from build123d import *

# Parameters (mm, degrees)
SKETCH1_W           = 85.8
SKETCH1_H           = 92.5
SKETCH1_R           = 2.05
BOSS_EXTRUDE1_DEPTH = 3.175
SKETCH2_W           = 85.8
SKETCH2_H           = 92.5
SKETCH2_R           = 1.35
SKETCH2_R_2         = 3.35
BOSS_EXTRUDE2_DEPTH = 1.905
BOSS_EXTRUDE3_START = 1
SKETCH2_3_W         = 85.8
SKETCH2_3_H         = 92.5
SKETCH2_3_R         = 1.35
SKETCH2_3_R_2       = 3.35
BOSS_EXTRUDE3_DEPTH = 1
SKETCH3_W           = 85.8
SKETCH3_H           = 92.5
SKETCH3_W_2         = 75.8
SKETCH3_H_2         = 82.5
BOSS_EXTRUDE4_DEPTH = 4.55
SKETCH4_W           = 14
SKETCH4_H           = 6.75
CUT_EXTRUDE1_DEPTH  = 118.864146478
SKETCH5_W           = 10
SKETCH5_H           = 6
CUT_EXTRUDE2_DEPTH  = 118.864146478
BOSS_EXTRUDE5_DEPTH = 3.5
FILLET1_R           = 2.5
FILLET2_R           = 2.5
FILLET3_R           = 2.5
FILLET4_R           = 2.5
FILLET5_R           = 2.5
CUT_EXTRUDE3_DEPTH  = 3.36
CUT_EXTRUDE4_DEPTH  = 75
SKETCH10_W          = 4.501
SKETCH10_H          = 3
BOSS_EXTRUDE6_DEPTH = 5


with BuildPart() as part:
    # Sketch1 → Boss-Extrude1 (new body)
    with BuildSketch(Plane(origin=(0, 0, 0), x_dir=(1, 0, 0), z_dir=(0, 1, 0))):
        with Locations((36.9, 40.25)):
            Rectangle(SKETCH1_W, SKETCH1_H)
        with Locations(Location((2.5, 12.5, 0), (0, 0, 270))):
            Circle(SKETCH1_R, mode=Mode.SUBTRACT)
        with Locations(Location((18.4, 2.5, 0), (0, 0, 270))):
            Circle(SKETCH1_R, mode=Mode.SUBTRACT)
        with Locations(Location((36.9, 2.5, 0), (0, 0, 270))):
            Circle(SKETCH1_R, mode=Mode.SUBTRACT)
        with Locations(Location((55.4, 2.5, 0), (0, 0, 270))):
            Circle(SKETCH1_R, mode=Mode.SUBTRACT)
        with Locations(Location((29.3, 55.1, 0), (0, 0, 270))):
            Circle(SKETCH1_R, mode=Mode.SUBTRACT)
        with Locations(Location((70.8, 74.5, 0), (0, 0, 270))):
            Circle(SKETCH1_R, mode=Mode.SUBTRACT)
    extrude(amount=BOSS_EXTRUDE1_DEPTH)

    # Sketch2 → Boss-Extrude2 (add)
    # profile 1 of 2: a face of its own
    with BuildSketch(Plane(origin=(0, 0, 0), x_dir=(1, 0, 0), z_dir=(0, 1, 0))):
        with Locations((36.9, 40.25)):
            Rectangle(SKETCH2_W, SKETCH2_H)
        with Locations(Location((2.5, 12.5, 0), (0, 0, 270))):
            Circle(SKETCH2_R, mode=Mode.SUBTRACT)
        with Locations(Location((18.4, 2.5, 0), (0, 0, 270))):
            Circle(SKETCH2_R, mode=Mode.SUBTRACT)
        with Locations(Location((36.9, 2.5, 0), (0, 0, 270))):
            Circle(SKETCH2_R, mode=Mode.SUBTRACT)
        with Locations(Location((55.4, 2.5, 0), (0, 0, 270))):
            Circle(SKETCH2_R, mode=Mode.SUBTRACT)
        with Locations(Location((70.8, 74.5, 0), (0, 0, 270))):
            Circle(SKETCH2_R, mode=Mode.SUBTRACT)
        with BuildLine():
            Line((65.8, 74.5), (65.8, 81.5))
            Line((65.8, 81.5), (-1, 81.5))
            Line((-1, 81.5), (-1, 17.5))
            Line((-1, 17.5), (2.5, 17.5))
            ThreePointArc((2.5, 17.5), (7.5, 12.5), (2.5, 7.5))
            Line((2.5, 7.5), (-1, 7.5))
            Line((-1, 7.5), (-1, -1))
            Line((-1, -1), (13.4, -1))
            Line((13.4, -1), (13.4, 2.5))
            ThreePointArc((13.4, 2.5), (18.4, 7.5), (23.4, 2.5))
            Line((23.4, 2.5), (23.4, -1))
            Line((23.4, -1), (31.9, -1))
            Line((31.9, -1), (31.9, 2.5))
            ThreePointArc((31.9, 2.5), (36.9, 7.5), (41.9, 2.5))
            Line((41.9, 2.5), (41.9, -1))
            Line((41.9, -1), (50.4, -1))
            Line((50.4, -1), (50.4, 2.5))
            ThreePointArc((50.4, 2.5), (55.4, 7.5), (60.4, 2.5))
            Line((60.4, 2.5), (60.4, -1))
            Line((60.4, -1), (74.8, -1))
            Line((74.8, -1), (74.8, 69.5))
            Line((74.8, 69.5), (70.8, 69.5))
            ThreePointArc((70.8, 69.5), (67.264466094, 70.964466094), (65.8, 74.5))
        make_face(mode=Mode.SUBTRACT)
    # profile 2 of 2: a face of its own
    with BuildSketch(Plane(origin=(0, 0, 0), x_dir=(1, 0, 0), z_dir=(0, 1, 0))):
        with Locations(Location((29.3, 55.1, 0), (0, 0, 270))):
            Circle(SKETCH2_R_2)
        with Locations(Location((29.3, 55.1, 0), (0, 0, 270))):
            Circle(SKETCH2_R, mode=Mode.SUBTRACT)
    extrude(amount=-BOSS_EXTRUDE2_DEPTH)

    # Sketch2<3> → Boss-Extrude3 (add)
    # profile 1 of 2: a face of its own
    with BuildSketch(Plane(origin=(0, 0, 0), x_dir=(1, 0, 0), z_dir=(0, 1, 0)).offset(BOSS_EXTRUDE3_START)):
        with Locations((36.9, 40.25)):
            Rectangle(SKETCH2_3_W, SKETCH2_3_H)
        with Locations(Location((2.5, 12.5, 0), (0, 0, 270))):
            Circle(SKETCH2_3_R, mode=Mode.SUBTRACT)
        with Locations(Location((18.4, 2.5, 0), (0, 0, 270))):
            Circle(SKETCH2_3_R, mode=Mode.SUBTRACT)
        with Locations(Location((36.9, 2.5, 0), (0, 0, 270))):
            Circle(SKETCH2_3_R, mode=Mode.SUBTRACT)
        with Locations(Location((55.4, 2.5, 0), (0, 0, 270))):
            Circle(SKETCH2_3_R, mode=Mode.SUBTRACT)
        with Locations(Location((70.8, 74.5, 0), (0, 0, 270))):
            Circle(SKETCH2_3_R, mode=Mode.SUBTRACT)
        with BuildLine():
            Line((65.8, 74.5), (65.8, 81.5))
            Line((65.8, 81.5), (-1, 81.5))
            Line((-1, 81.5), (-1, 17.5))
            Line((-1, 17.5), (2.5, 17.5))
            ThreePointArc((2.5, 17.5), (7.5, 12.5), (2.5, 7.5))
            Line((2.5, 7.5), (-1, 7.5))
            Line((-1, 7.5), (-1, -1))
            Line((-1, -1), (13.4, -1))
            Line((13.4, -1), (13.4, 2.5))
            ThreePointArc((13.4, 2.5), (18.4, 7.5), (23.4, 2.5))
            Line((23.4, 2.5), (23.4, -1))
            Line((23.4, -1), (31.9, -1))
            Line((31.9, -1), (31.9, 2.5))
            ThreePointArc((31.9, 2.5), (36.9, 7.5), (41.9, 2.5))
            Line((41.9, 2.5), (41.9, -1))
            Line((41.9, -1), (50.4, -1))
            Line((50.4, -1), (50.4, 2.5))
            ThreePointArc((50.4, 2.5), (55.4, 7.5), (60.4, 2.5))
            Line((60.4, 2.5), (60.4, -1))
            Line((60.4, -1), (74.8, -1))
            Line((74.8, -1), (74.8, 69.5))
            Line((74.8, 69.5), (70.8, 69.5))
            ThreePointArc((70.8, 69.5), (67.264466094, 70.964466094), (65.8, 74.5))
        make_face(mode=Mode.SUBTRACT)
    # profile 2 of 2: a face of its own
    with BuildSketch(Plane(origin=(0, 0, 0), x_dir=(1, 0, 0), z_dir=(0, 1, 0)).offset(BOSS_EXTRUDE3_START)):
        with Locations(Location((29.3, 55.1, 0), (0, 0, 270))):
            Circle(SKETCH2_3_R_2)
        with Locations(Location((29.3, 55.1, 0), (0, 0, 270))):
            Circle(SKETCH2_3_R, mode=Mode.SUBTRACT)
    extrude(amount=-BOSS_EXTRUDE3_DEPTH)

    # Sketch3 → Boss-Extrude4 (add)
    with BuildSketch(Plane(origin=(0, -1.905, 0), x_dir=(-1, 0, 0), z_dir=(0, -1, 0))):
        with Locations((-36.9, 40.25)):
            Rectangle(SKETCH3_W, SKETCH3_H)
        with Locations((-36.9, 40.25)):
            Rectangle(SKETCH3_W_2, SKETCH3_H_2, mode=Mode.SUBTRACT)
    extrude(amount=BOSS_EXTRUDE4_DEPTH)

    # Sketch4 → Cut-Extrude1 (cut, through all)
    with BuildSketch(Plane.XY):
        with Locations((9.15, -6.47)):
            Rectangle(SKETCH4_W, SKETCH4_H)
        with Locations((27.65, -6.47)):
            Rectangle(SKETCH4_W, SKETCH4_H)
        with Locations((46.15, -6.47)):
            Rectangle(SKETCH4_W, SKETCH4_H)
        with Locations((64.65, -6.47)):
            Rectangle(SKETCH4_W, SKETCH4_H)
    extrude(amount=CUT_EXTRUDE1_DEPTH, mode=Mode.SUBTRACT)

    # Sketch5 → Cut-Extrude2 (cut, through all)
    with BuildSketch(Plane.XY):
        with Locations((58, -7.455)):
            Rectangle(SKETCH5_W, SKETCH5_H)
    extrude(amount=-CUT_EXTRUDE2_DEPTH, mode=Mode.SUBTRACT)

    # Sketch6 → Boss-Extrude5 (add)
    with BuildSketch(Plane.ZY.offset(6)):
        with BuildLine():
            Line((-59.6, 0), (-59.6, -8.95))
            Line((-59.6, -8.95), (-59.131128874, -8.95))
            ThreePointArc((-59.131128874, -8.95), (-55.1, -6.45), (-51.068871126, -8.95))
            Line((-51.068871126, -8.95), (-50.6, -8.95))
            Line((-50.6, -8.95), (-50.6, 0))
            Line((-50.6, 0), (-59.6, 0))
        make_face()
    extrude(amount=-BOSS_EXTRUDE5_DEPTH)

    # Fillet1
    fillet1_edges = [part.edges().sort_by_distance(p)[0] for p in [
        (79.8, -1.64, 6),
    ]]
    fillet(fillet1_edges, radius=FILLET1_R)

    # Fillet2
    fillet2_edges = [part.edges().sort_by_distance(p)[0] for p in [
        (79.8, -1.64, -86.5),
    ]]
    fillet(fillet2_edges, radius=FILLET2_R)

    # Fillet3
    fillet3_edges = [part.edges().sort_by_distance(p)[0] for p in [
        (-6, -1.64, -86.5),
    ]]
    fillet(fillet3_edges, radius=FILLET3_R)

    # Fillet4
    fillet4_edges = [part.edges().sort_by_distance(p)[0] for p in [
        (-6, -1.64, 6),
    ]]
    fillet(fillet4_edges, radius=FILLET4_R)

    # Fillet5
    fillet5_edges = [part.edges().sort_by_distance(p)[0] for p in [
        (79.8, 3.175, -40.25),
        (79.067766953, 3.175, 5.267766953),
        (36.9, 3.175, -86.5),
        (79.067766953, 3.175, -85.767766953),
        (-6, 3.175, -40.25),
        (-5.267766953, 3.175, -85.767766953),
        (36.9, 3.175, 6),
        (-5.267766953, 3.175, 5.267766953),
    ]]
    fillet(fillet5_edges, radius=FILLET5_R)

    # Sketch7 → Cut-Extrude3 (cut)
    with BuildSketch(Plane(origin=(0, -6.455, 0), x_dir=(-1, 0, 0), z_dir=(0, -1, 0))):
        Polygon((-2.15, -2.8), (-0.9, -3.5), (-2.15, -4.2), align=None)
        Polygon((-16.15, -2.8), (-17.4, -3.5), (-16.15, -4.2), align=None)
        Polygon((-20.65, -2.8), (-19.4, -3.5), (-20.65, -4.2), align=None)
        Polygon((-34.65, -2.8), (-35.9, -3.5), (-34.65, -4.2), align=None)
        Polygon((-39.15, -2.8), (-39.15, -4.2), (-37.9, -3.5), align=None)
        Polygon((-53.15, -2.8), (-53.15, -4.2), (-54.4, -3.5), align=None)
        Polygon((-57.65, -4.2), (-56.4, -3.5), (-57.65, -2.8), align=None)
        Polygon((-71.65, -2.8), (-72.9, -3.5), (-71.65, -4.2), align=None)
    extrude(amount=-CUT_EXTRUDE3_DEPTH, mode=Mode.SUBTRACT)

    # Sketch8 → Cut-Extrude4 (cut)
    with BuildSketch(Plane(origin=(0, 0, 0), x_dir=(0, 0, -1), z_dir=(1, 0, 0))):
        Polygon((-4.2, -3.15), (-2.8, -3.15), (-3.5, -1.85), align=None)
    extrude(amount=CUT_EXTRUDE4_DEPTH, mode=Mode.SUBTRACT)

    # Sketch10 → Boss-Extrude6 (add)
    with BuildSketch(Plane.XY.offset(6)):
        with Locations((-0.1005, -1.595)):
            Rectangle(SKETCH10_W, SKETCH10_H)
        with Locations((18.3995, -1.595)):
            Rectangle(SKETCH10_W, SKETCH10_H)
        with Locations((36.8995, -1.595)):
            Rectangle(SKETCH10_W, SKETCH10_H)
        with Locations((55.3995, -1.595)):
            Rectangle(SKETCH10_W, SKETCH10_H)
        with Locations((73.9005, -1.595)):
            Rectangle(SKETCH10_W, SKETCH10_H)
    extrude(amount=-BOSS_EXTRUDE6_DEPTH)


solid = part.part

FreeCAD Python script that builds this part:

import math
import FreeCAD as App
import Part
import Sketcher
from FreeCAD import Vector
Q = App.Units.Quantity


def edges_at(feature, points):
    """Names of the edges that pass closest to the given points."""
    edges = feature.Shape.Edges
    near = lambda p: min(range(len(edges)), key=lambda i: edges[i].distToShape(Part.Vertex(*p))[0])
    return sorted({f"Edge{near(p) + 1}" for p in points})


def add_polygon(sketch, points):
    """Adds a closed chain of lines whose ends are joined by coincident constraints."""
    first, n = sketch.GeometryCount, len(points)
    for a, b in zip(points, points[1:] + points[:1]):
        sketch.addGeometry(Part.LineSegment(App.Vector(*a, 0), App.Vector(*b, 0)), False)
    for i in range(n):
        sketch.addConstraint(Sketcher.Constraint("Coincident", first + i, 2, first + (i + 1) % n, 1))

doc = App.newDocument("Part")
params = doc.addObject("Spreadsheet::Sheet", "Params")
for row, (alias, value) in enumerate([
    ("sketch1_diameter", "4.1 mm"),
    ("sketch1_width", "85.8 mm"),
    ("sketch1_height", "92.5 mm"),
    ("pad1_length", "3.175 mm"),
    ("sketch2_radius", "5 mm"),
    ("sketch2_diameter", "2.7 mm"),
    ("sketch2_diameter2", "6.7 mm"),
    ("sketch2_width", "4 mm"),
    ("sketch2_height", "7 mm"),
    ("pad2_length", "1.905 mm"),
    ("sketch3_radius", "5 mm"),
    ("sketch3_diameter", "2.7 mm"),
    ("sketch3_diameter2", "6.7 mm"),
    ("sketch3_width", "4 mm"),
    ("sketch3_height", "7 mm"),
    ("pad3_length", "1 mm"),
    ("sketch4_width", "85.8 mm"),
    ("sketch4_width2", "75.8 mm"),
    ("sketch4_height", "92.5 mm"),
    ("sketch4_height2", "82.5 mm"),
    ("pad4_length", "4.55 mm"),
    ("sketch5_width", "14 mm"),
    ("sketch5_height", "6.75 mm"),
    ("sketch6_width", "10 mm"),
    ("sketch6_height", "6 mm"),
    ("sketch7_radius", "4.5 mm"),
    ("sketch7_height", "9 mm"),
    ("sketch7_width", "8.95 mm"),
    ("pad5_length", "3.5 mm"),
    ("fillet_radius", "2.5 mm"),
    ("fillet2_radius", "2.5 mm"),
    ("fillet3_radius", "2.5 mm"),
    ("fillet4_radius", "2.5 mm"),
    ("fillet5_radius", "2.5 mm"),
    ("sketch8_height", "1.4 mm"),
    ("pocket3_length", "3.36 mm"),
    ("sketch9_height", "1.4 mm"),
    ("pocket4_length", "75 mm"),
    ("sketch10_height", "3 mm"),
    ("pad6_length", "5 mm"),
], start=1):
    params.set(f"A{row}", alias)
    params.set(f"B{row}", "=" + value)
    params.setAlias(f"B{row}", alias)

body = doc.addObject("PartDesign::Body", "Body")

sketch1 = body.newObject("Sketcher::SketchObject", "Sketch")
sketch1.AttachmentSupport = (doc.getObject("XZ_Plane"), [""])
sketch1.MapMode = "FlatFace"
add_polygon(sketch1, [(-6, -86.5), (-6, 6), (79.8, 6), (79.8, -86.5)])
sketch1.addGeometry(Part.Circle(Vector(18.4, -2.5, 0), Vector(0, 0, 1), 2.05), False)
sketch1.addGeometry(Part.Circle(Vector(2.5, -12.5, 0), Vector(0, 0, 1), 2.05), False)
sketch1.addGeometry(Part.Circle(Vector(36.9, -2.5, 0), Vector(0, 0, 1), 2.05), False)
sketch1.addGeometry(Part.Circle(Vector(55.4, -2.5, 0), Vector(0, 0, 1), 2.05), False)
sketch1.addGeometry(Part.Circle(Vector(29.3, -55.1, 0), Vector(0, 0, 1), 2.05), False)
sketch1.addGeometry(Part.Circle(Vector(70.8, -74.5, 0), Vector(0, 0, 1), 2.05), False)
sketch1.addConstraint(Sketcher.Constraint("Vertical", 0))
sketch1.addConstraint(Sketcher.Constraint("Horizontal", 1))
sketch1.addConstraint(Sketcher.Constraint("Vertical", 2))
sketch1.addConstraint(Sketcher.Constraint("Horizontal", 3))
sketch1.addConstraint(Sketcher.Constraint("Equal", 4, 5))
sketch1.addConstraint(Sketcher.Constraint("Equal", 5, 6))
sketch1.addConstraint(Sketcher.Constraint("Equal", 6, 7))
sketch1.addConstraint(Sketcher.Constraint("Equal", 7, 8))
sketch1.addConstraint(Sketcher.Constraint("Equal", 8, 9))
sketch1.addConstraint(Sketcher.Constraint("Horizontal", 4, 3, 6, 3))
sketch1.addConstraint(Sketcher.Constraint("Horizontal", 6, 3, 7, 3))
sketch1.addConstraint(Sketcher.Constraint("Diameter", 4, Q("4.1 mm")))
sketch1.addConstraint(Sketcher.Constraint("DistanceX", 1, 1, 1, 2, Q("85.8 mm")))
sketch1.addConstraint(Sketcher.Constraint("DistanceY", 0, 1, 0, 2, Q("92.5 mm")))
sketch1.addConstraint(Sketcher.Constraint("DistanceX", 0, 2, -1, 1, Q("6 mm")))
sketch1.addConstraint(Sketcher.Constraint("DistanceY", -1, 1, 0, 2, Q("6 mm")))
sketch1.addConstraint(Sketcher.Constraint("DistanceY", 5, 3, 4, 3, Q("10 mm")))
sketch1.addConstraint(Sketcher.Constraint("DistanceX", 4, 3, 7, 3, Q("37 mm")))
sketch1.addConstraint(Sketcher.Constraint("DistanceY", 9, 3, 7, 3, Q("72 mm")))
sketch1.addConstraint(Sketcher.Constraint("DistanceX", 9, 3, 2, 2, Q("9 mm")))
sketch1.addConstraint(Sketcher.Constraint("DistanceY", 2, 2, 9, 3, Q("12 mm")))
sketch1.addConstraint(Sketcher.Constraint("DistanceX", -1, 1, 4, 3, Q("18.4 mm")))
sketch1.addConstraint(Sketcher.Constraint("DistanceX", -1, 1, 5, 3, Q("2.5 mm")))
sketch1.addConstraint(Sketcher.Constraint("DistanceX", -1, 1, 6, 3, Q("36.9 mm")))
sketch1.addConstraint(Sketcher.Constraint("DistanceX", -1, 1, 8, 3, Q("29.3 mm")))
sketch1.addConstraint(Sketcher.Constraint("DistanceY", 8, 3, -1, 1, Q("55.1 mm")))
sketch1.setExpression("Constraints[15]", "Params.sketch1_diameter")
sketch1.setExpression("Constraints[16]", "Params.sketch1_width")
sketch1.setExpression("Constraints[17]", "Params.sketch1_height")
pad1 = body.newObject("PartDesign::Pad", "Pad")
pad1.Profile = sketch1
pad1.setExpression("Length", "Params.pad1_length")
pad1.Reversed = True

sketch2 = body.newObject("Sketcher::SketchObject", "Sketch001")
sketch2.AttachmentSupport = (doc.getObject("XZ_Plane"), [""])
sketch2.MapMode = "FlatFace"
add_polygon(sketch2, [(-6, -86.5), (-6, 6), (79.8, 6), (79.8, -86.5)])
sketch2.addGeometry(Part.Circle(Vector(2.5, -12.5, 0), Vector(0, 0, 1), 1.35), False)
sketch2.addGeometry(Part.Circle(Vector(18.4, -2.5, 0), Vector(0, 0, 1), 1.35), False)
sketch2.addGeometry(Part.Circle(Vector(36.9, -2.5, 0), Vector(0, 0, 1), 1.35), False)
sketch2.addGeometry(Part.Circle(Vector(55.4, -2.5, 0), Vector(0, 0, 1), 1.35), False)
sketch2.addGeometry(Part.LineSegment(Vector(65.8, -81.5, 0), Vector(65.8, -74.5, 0)), False)
sketch2.addGeometry(Part.ArcOfCircle(Part.Circle(Vector(70.8, -74.5, 0), Vector(0, 0, 1), 5), math.radians(90), math.radians(180)), False)
sketch2.addGeometry(Part.LineSegment(Vector(70.8, -69.5, 0), Vector(74.8, -69.5, 0)), False)
sketch2.addGeometry(Part.LineSegment(Vector(74.8, -69.5, 0), Vector(74.8, 1, 0)), False)
sketch2.addGeometry(Part.LineSegment(Vector(74.8, 1, 0), Vector(60.4, 1, 0)), False)
sketch2.addGeometry(Part.LineSegment(Vector(60.4, 1, 0), Vector(60.4, -2.5, 0)), False)
sketch2.addGeometry(Part.ArcOfCircle(Part.Circle(Vector(55.4, -2.5, 0), Vector(0, 0, 1), 5), math.radians(180), math.radians(360)), False)
sketch2.addGeometry(Part.LineSegment(Vector(50.4, -2.5, 0), Vector(50.4, 1, 0)), False)
sketch2.addGeometry(Part.LineSegment(Vector(50.4, 1, 0), Vector(41.9, 1, 0)), False)
sketch2.addGeometry(Part.LineSegment(Vector(41.9, 1, 0), Vector(41.9, -2.5, 0)), False)
sketch2.addGeometry(Part.ArcOfCircle(Part.Circle(Vector(36.9, -2.5, 0), Vector(0, 0, 1), 5), math.radians(180), math.radians(360)), False)
sketch2.addGeometry(Part.LineSegment(Vector(31.9, -2.5, 0), Vector(31.9, 1, 0)), False)
sketch2.addGeometry(Part.LineSegment(Vector(31.9, 1, 0), Vector(23.4, 1, 0)), False)
sketch2.addGeometry(Part.LineSegment(Vector(23.4, 1, 0), Vector(23.4, -2.5, 0)), False)
sketch2.addGeometry(Part.ArcOfCircle(Part.Circle(Vector(18.4, -2.5, 0), Vector(0, 0, 1), 5), math.radians(180), math.radians(360)), False)
sketch2.addGeometry(Part.LineSegment(Vector(13.4, -2.5, 0), Vector(13.4, 1, 0)), False)
sketch2.addGeometry(Part.LineSegment(Vector(13.4, 1, 0), Vector(-1, 1, 0)), False)
sketch2.addGeometry(Part.LineSegment(Vector(-1, 1, 0), Vector(-1, -7.5, 0)), False)
sketch2.addGeometry(Part.LineSegment(Vector(-1, -7.5, 0), Vector(2.5, -7.5, 0)), False)
sketch2.addGeometry(Part.ArcOfCircle(Part.Circle(Vector(2.5, -12.5, 0), Vector(0, 0, 1), 5), math.radians(-90), math.radians(90)), False)
sketch2.addGeometry(Part.LineSegment(Vector(2.5, -17.5, 0), Vector(-1, -17.5, 0)), False)
sketch2.addGeometry(Part.LineSegment(Vector(-1, -17.5, 0), Vector(-1, -81.5, 0)), False)
sketch2.addGeometry(Part.LineSegment(Vector(-1, -81.5, 0), Vector(65.8, -81.5, 0)), False)
sketch2.addGeometry(Part.Circle(Vector(70.8, -74.5, 0), Vector(0, 0, 1), 1.35), False)
sketch2.addGeometry(Part.Circle(Vector(29.3, -55.1, 0), Vector(0, 0, 1), 3.35), False)
sketch2.addGeometry(Part.Circle(Vector(29.3, -55.1, 0), Vector(0, 0, 1), 1.35), False)
sketch2.addConstraint(Sketcher.Constraint("Tangent", 8, 2, 9, 2))
sketch2.addConstraint(Sketcher.Constraint("Tangent", 9, 1, 10, 1))
sketch2.addConstraint(Sketcher.Constraint("Coincident", 10, 2, 11, 1))
sketch2.addConstraint(Sketcher.Constraint("Coincident", 11, 2, 12, 1))
sketch2.addConstraint(Sketcher.Constraint("Coincident", 12, 2, 13, 1))
sketch2.addConstraint(Sketcher.Constraint("Tangent", 13, 2, 14, 2))
sketch2.addConstraint(Sketcher.Constraint("Tangent", 14, 1, 15, 1))
sketch2.addConstraint(Sketcher.Constraint("Coincident", 15, 2, 16, 1))
sketch2.addConstraint(Sketcher.Constraint("Coincident", 16, 2, 17, 1))
sketch2.addConstraint(Sketcher.Constraint("Tangent", 17, 2, 18, 2))
sketch2.addConstraint(Sketcher.Constraint("Tangent", 18, 1, 19, 1))
sketch2.addConstraint(Sketcher.Constraint("Coincident", 19, 2, 20, 1))
sketch2.addConstraint(Sketcher.Constraint("Coincident", 20, 2, 21, 1))
sketch2.addConstraint(Sketcher.Constraint("Tangent", 21, 2, 22, 2))
sketch2.addConstraint(Sketcher.Constraint("Tangent", 22, 1, 23, 1))
sketch2.addConstraint(Sketcher.Constraint("Coincident", 23, 2, 24, 1))
sketch2.addConstraint(Sketcher.Constraint("Coincident", 24, 2, 25, 1))
sketch2.addConstraint(Sketcher.Constraint("Coincident", 25, 2, 26, 1))
sketch2.addConstraint(Sketcher.Constraint("Tangent", 26, 2, 27, 2))
sketch2.addConstraint(Sketcher.Constraint("Tangent", 27, 1, 28, 1))
sketch2.addConstraint(Sketcher.Constraint("Coincident", 28, 2, 29, 1))
sketch2.addConstraint(Sketcher.Constraint("Coincident", 29, 2, 30, 1))
sketch2.addConstraint(Sketcher.Constraint("Coincident", 30, 2, 8, 1))
sketch2.addConstraint(Sketcher.Constraint("Vertical", 0))
sketch2.addConstraint(Sketcher.Constraint("Horizontal", 1))
sketch2.addConstraint(Sketcher.Constraint("Vertical", 2))
sketch2.addConstraint(Sketcher.Constraint("Horizontal", 3))
sketch2.addConstraint(Sketcher.Constraint("Vertical", 8))
sketch2.addConstraint(Sketcher.Constraint("Horizontal", 10))
sketch2.addConstraint(Sketcher.Constraint("Vertical", 11))
sketch2.addConstraint(Sketcher.Constraint("Horizontal", 12))
sketch2.addConstraint(Sketcher.Constraint("Vertical", 13))
sketch2.addConstraint(Sketcher.Constraint("Vertical", 15))
sketch2.addConstraint(Sketcher.Constraint("Horizontal", 16))
sketch2.addConstraint(Sketcher.Constraint("Vertical", 17))
sketch2.addConstraint(Sketcher.Constraint("Vertical", 19))
sketch2.addConstraint(Sketcher.Constraint("Horizontal", 20))
sketch2.addConstraint(Sketcher.Constraint("Vertical", 21))
sketch2.addConstraint(Sketcher.Constraint("Vertical", 23))
sketch2.addConstraint(Sketcher.Constraint("Horizontal", 24))
sketch2.addConstraint(Sketcher.Constraint("Vertical", 25))
sketch2.addConstraint(Sketcher.Constraint("Horizontal", 26))
sketch2.addConstraint(Sketcher.Constraint("Horizontal", 28))
sketch2.addConstraint(Sketcher.Constraint("Vertical", 29))
sketch2.addConstraint(Sketcher.Constraint("Horizontal", 30))
sketch2.addConstraint(Sketcher.Constraint("Coincident", 14, 3, 7, 3))
sketch2.addConstraint(Sketcher.Constraint("Coincident", 18, 3, 6, 3))
sketch2.addConstraint(Sketcher.Constraint("Coincident", 22, 3, 5, 3))
sketch2.addConstraint(Sketcher.Constraint("Coincident", 27, 3, 4, 3))
sketch2.addConstraint(Sketcher.Constraint("Coincident", 31, 3, 9, 3))
sketch2.addConstraint(Sketcher.Constraint("Coincident", 33, 3, 32, 3))
sketch2.addConstraint(Sketcher.Constraint("Equal", 4, 5))
sketch2.addConstraint(Sketcher.Constraint("Equal", 5, 6))
sketch2.addConstraint(Sketcher.Constraint("Equal", 6, 7))
sketch2.addConstraint(Sketcher.Constraint("Equal", 9, 14))
sketch2.addConstraint(Sketcher.Constraint("Equal", 14, 18))
sketch2.addConstraint(Sketcher.Constraint("Equal", 18, 22))
sketch2.addConstraint(Sketcher.Constraint("Equal", 22, 27))
sketch2.addConstraint(Sketcher.Constraint("Equal", 7, 31))
sketch2.addConstraint(Sketcher.Constraint("Equal", 31, 33))
sketch2.addConstraint(Sketcher.Constraint("Horizontal", 5, 3, 6, 3))
sketch2.addConstraint(Sketcher.Constraint("Horizontal", 6, 3, 7, 3))
sketch2.addConstraint(Sketcher.Constraint("Horizontal", 12, 2, 15, 2))
sketch2.addConstraint(Sketcher.Constraint("Horizontal", 16, 2, 19, 2))
sketch2.addConstraint(Sketcher.Constraint("Horizontal", 20, 2, 23, 2))
sketch2.addConstraint(Sketcher.Constraint("Vertical", 25, 2, 28, 2))
sketch2.addConstraint(Sketcher.Constraint("Equal", 16, 20))
sketch2.addConstraint(Sketcher.Constraint("Equal", 12, 24))
sketch2.addConstraint(Sketcher.Constraint("Equal", 28, 13))
sketch2.addConstraint(Sketcher.Constraint("Equal", 20, 25))
sketch2.addConstraint(Sketcher.Constraint("Radius", 9, Q("5 mm")))
sketch2.addConstraint(Sketcher.Constraint("Diameter", 4, Q("2.7 mm")))
sketch2.addConstraint(Sketcher.Constraint("Diameter", 32, Q("6.7 mm")))
sketch2.addConstraint(Sketcher.Constraint("DistanceX", 10, 1, 10, 2, Q("4 mm")))
sketch2.addConstraint(Sketcher.Constraint("DistanceY", 8, 1, 8, 2, Q("7 mm")))
sketch2.addConstraint(Sketcher.Constraint("DistanceY", 29, 2, 29, 1, Q("64 mm")))
sketch2.addConstraint(Sketcher.Constraint("DistanceX", 1, 1, 1, 2, Q("85.8 mm")))
sketch2.addConstraint(Sketcher.Constraint("DistanceX", 12, 2, 12, 1, Q("14.4 mm")))
sketch2.addConstraint(Sketcher.Constraint("DistanceX", 16, 2, 16, 1, Q("8.5 mm")))
sketch2.addConstraint(Sketcher.Constraint("DistanceX", 26, 1, 26, 2, Q("3.5 mm")))
sketch2.addConstraint(Sketcher.Constraint("DistanceY", 0, 1, 0, 2, Q("92.5 mm")))
sketch2.addConstraint(Sketcher.Constraint("DistanceX", 0, 2, -1, 1, Q("6 mm")))
sketch2.addConstraint(Sketcher.Constraint("DistanceY", -1, 1, 0, 2, Q("6 mm")))
sketch2.addConstraint(Sketcher.Constraint("DistanceY", -1, 1, 11, 2, Q("1 mm")))
sketch2.addConstraint(Sketcher.Constraint("DistanceX", 24, 2, -1, 1, Q("1 mm")))
sketch2.addConstraint(Sketcher.Constraint("DistanceX", -1, 1, 32, 3, Q("29.3 mm")))
sketch2.addConstraint(Sketcher.Constraint("DistanceY", 32, 3, -1, 1, Q("55.1 mm")))
sketch2.setExpression("Constraints[74]", "Params.sketch2_radius")
sketch2.setExpression("Constraints[75]", "Params.sketch2_diameter")
sketch2.setExpression("Constraints[76]", "Params.sketch2_diameter2")
sketch2.setExpression("Constraints[77]", "Params.sketch2_width")
sketch2.setExpression("Constraints[78]", "Params.sketch2_height")
pad2 = body.newObject("PartDesign::Pad", "Pad001")
pad2.Profile = sketch2
pad2.setExpression("Length", "Params.pad2_length")

sketch3 = body.newObject("Sketcher::SketchObject", "Sketch002")
sketch3.AttachmentSupport = (doc.getObject("XZ_Plane"), [""])
sketch3.MapMode = "FlatFace"
sketch3.AttachmentOffset = App.Placement(Vector(0, 0, -1), App.Rotation())
add_polygon(sketch3, [(-6, -86.5), (-6, 6), (79.8, 6), (79.8, -86.5)])
sketch3.addGeometry(Part.Circle(Vector(2.5, -12.5, 0), Vector(0, 0, 1), 1.35), False)
sketch3.addGeometry(Part.Circle(Vector(18.4, -2.5, 0), Vector(0, 0, 1), 1.35), False)
sketch3.addGeometry(Part.Circle(Vector(36.9, -2.5, 0), Vector(0, 0, 1), 1.35), False)
sketch3.addGeometry(Part.Circle(Vector(55.4, -2.5, 0), Vector(0, 0, 1), 1.35), False)
sketch3.addGeometry(Part.LineSegment(Vector(65.8, -81.5, 0), Vector(65.8, -74.5, 0)), False)
sketch3.addGeometry(Part.ArcOfCircle(Part.Circle(Vector(70.8, -74.5, 0), Vector(0, 0, 1), 5), math.radians(90), math.radians(180)), False)
sketch3.addGeometry(Part.LineSegment(Vector(70.8, -69.5, 0), Vector(74.8, -69.5, 0)), False)
sketch3.addGeometry(Part.LineSegment(Vector(74.8, -69.5, 0), Vector(74.8, 1, 0)), False)
sketch3.addGeometry(Part.LineSegment(Vector(74.8, 1, 0), Vector(60.4, 1, 0)), False)
sketch3.addGeometry(Part.LineSegment(Vector(60.4, 1, 0), Vector(60.4, -2.5, 0)), False)
sketch3.addGeometry(Part.ArcOfCircle(Part.Circle(Vector(55.4, -2.5, 0), Vector(0, 0, 1), 5), math.radians(180), math.radians(360)), False)
sketch3.addGeometry(Part.LineSegment(Vector(50.4, -2.5, 0), Vector(50.4, 1, 0)), False)
sketch3.addGeometry(Part.LineSegment(Vector(50.4, 1, 0), Vector(41.9, 1, 0)), False)
sketch3.addGeometry(Part.LineSegment(Vector(41.9, 1, 0), Vector(41.9, -2.5, 0)), False)
sketch3.addGeometry(Part.ArcOfCircle(Part.Circle(Vector(36.9, -2.5, 0), Vector(0, 0, 1), 5), math.radians(180), math.radians(360)), False)
sketch3.addGeometry(Part.LineSegment(Vector(31.9, -2.5, 0), Vector(31.9, 1, 0)), False)
sketch3.addGeometry(Part.LineSegment(Vector(31.9, 1, 0), Vector(23.4, 1, 0)), False)
sketch3.addGeometry(Part.LineSegment(Vector(23.4, 1, 0), Vector(23.4, -2.5, 0)), False)
sketch3.addGeometry(Part.ArcOfCircle(Part.Circle(Vector(18.4, -2.5, 0), Vector(0, 0, 1), 5), math.radians(180), math.radians(360)), False)
sketch3.addGeometry(Part.LineSegment(Vector(13.4, -2.5, 0), Vector(13.4, 1, 0)), False)
sketch3.addGeometry(Part.LineSegment(Vector(13.4, 1, 0), Vector(-1, 1, 0)), False)
sketch3.addGeometry(Part.LineSegment(Vector(-1, 1, 0), Vector(-1, -7.5, 0)), False)
sketch3.addGeometry(Part.LineSegment(Vector(-1, -7.5, 0), Vector(2.5, -7.5, 0)), False)
sketch3.addGeometry(Part.ArcOfCircle(Part.Circle(Vector(2.5, -12.5, 0), Vector(0, 0, 1), 5), math.radians(-90), math.radians(90)), False)
sketch3.addGeometry(Part.LineSegment(Vector(2.5, -17.5, 0), Vector(-1, -17.5, 0)), False)
sketch3.addGeometry(Part.LineSegment(Vector(-1, -17.5, 0), Vector(-1, -81.5, 0)), False)
sketch3.addGeometry(Part.LineSegment(Vector(-1, -81.5, 0), Vector(65.8, -81.5, 0)), False)
sketch3.addGeometry(Part.Circle(Vector(70.8, -74.5, 0), Vector(0, 0, 1), 1.35), False)
sketch3.addGeometry(Part.Circle(Vector(29.3, -55.1, 0), Vector(0, 0, 1), 3.35), False)
sketch3.addGeometry(Part.Circle(Vector(29.3, -55.1, 0), Vector(0, 0, 1), 1.35), False)
sketch3.addConstraint(Sketcher.Constraint("Tangent", 8, 2, 9, 2))
sketch3.addConstraint(Sketcher.Constraint("Tangent", 9, 1, 10, 1))
sketch3.addConstraint(Sketcher.Constraint("Coincident", 10, 2, 11, 1))
sketch3.addConstraint(Sketcher.Constraint("Coincident", 11, 2, 12, 1))
sketch3.addConstraint(Sketcher.Constraint("Coincident", 12, 2, 13, 1))
sketch3.addConstraint(Sketcher.Constraint("Tangent", 13, 2, 14, 2))
sketch3.addConstraint(Sketcher.Constraint("Tangent", 14, 1, 15, 1))
sketch3.addConstraint(Sketcher.Constraint("Coincident", 15, 2, 16, 1))
sketch3.addConstraint(Sketcher.Constraint("Coincident", 16, 2, 17, 1))
sketch3.addConstraint(Sketcher.Constraint("Tangent", 17, 2, 18, 2))
sketch3.addConstraint(Sketcher.Constraint("Tangent", 18, 1, 19, 1))
sketch3.addConstraint(Sketcher.Constraint("Coincident", 19, 2, 20, 1))
sketch3.addConstraint(Sketcher.Constraint("Coincident", 20, 2, 21, 1))
sketch3.addConstraint(Sketcher.Constraint("Tangent", 21, 2, 22, 2))
sketch3.addConstraint(Sketcher.Constraint("Tangent", 22, 1, 23, 1))
sketch3.addConstraint(Sketcher.Constraint("Coincident", 23, 2, 24, 1))
sketch3.addConstraint(Sketcher.Constraint("Coincident", 24, 2, 25, 1))
sketch3.addConstraint(Sketcher.Constraint("Coincident", 25, 2, 26, 1))
sketch3.addConstraint(Sketcher.Constraint("Tangent", 26, 2, 27, 2))
sketch3.addConstraint(Sketcher.Constraint("Tangent", 27, 1, 28, 1))
sketch3.addConstraint(Sketcher.Constraint("Coincident", 28, 2, 29, 1))
sketch3.addConstraint(Sketcher.Constraint("Coincident", 29, 2, 30, 1))
sketch3.addConstraint(Sketcher.Constraint("Coincident", 30, 2, 8, 1))
sketch3.addConstraint(Sketcher.Constraint("Vertical", 0))
sketch3.addConstraint(Sketcher.Constraint("Horizontal", 1))
sketch3.addConstraint(Sketcher.Constraint("Vertical", 2))
sketch3.addConstraint(Sketcher.Constraint("Horizontal", 3))
sketch3.addConstraint(Sketcher.Constraint("Vertical", 8))
sketch3.addConstraint(Sketcher.Constraint("Horizontal", 10))
sketch3.addConstraint(Sketcher.Constraint("Vertical", 11))
sketch3.addConstraint(Sketcher.Constraint("Horizontal", 12))
sketch3.addConstraint(Sketcher.Constraint("Vertical", 13))
sketch3.addConstraint(Sketcher.Constraint("Vertical", 15))
sketch3.addConstraint(Sketcher.Constraint("Horizontal", 16))
sketch3.addConstraint(Sketcher.Constraint("Vertical", 17))
sketch3.addConstraint(Sketcher.Constraint("Vertical", 19))
sketch3.addConstraint(Sketcher.Constraint("Horizontal", 20))
sketch3.addConstraint(Sketcher.Constraint("Vertical", 21))
sketch3.addConstraint(Sketcher.Constraint("Vertical", 23))
sketch3.addConstraint(Sketcher.Constraint("Horizontal", 24))
sketch3.addConstraint(Sketcher.Constraint("Vertical", 25))
sketch3.addConstraint(Sketcher.Constraint("Horizontal", 26))
sketch3.addConstraint(Sketcher.Constraint("Horizontal", 28))
sketch3.addConstraint(Sketcher.Constraint("Vertical", 29))
sketch3.addConstraint(Sketcher.Constraint("Horizontal", 30))
sketch3.addConstraint(Sketcher.Constraint("Coincident", 14, 3, 7, 3))
sketch3.addConstraint(Sketcher.Constraint("Coincident", 18, 3, 6, 3))
sketch3.addConstraint(Sketcher.Constraint("Coincident", 22, 3, 5, 3))
sketch3.addConstraint(Sketcher.Constraint("Coincident", 27, 3, 4, 3))
sketch3.addConstraint(Sketcher.Constraint("Coincident", 31, 3, 9, 3))
sketch3.addConstraint(Sketcher.Constraint("Coincident", 33, 3, 32, 3))
sketch3.addConstraint(Sketcher.Constraint("Equal", 4, 5))
sketch3.addConstraint(Sketcher.Constraint("Equal", 5, 6))
sketch3.addConstraint(Sketcher.Constraint("Equal", 6, 7))
sketch3.addConstraint(Sketcher.Constraint("Equal", 9, 14))
sketch3.addConstraint(Sketcher.Constraint("Equal", 14, 18))
sketch3.addConstraint(Sketcher.Constraint("Equal", 18, 22))
sketch3.addConstraint(Sketcher.Constraint("Equal", 22, 27))
sketch3.addConstraint(Sketcher.Constraint("Equal", 7, 31))
sketch3.addConstraint(Sketcher.Constraint("Equal", 31, 33))
sketch3.addConstraint(Sketcher.Constraint("Horizontal", 5, 3, 6, 3))
sketch3.addConstraint(Sketcher.Constraint("Horizontal", 6, 3, 7, 3))
sketch3.addConstraint(Sketcher.Constraint("Horizontal", 12, 2, 15, 2))
sketch3.addConstraint(Sketcher.Constraint("Horizontal", 16, 2, 19, 2))
sketch3.addConstraint(Sketcher.Constraint("Horizontal", 20, 2, 23, 2))
sketch3.addConstraint(Sketcher.Constraint("Vertical", 25, 2, 28, 2))
sketch3.addConstraint(Sketcher.Constraint("Equal", 16, 20))
sketch3.addConstraint(Sketcher.Constraint("Equal", 12, 24))
sketch3.addConstraint(Sketcher.Constraint("Equal", 28, 13))
sketch3.addConstraint(Sketcher.Constraint("Equal", 20, 25))
sketch3.addConstraint(Sketcher.Constraint("Radius", 9, Q("5 mm")))
sketch3.addConstraint(Sketcher.Constraint("Diameter", 4, Q("2.7 mm")))
sketch3.addConstraint(Sketcher.Constraint("Diameter", 32, Q("6.7 mm")))
sketch3.addConstraint(Sketcher.Constraint("DistanceX", 10, 1, 10, 2, Q("4 mm")))
sketch3.addConstraint(Sketcher.Constraint("DistanceY", 8, 1, 8, 2, Q("7 mm")))
sketch3.addConstraint(Sketcher.Constraint("DistanceY", 29, 2, 29, 1, Q("64 mm")))
sketch3.addConstraint(Sketcher.Constraint("DistanceX", 1, 1, 1, 2, Q("85.8 mm")))
sketch3.addConstraint(Sketcher.Constraint("DistanceX", 12, 2, 12, 1, Q("14.4 mm")))
sketch3.addConstraint(Sketcher.Constraint("DistanceX", 16, 2, 16, 1, Q("8.5 mm")))
sketch3.addConstraint(Sketcher.Constraint("DistanceX", 26, 1, 26, 2, Q("3.5 mm")))
sketch3.addConstraint(Sketcher.Constraint("DistanceY", 0, 1, 0, 2, Q("92.5 mm")))
sketch3.addConstraint(Sketcher.Constraint("DistanceX", 0, 2, -1, 1, Q("6 mm")))
sketch3.addConstraint(Sketcher.Constraint("DistanceY", -1, 1, 0, 2, Q("6 mm")))
sketch3.addConstraint(Sketcher.Constraint("DistanceY", -1, 1, 11, 2, Q("1 mm")))
sketch3.addConstraint(Sketcher.Constraint("DistanceX", 24, 2, -1, 1, Q("1 mm")))
sketch3.addConstraint(Sketcher.Constraint("DistanceX", -1, 1, 32, 3, Q("29.3 mm")))
sketch3.addConstraint(Sketcher.Constraint("DistanceY", 32, 3, -1, 1, Q("55.1 mm")))
sketch3.setExpression("Constraints[74]", "Params.sketch3_radius")
sketch3.setExpression("Constraints[75]", "Params.sketch3_diameter")
sketch3.setExpression("Constraints[76]", "Params.sketch3_diameter2")
sketch3.setExpression("Constraints[77]", "Params.sketch3_width")
sketch3.setExpression("Constraints[78]", "Params.sketch3_height")
pad3 = body.newObject("PartDesign::Pad", "Pad002")
pad3.Profile = sketch3
pad3.setExpression("Length", "Params.pad3_length")

sketch4 = body.newObject("Sketcher::SketchObject", "Sketch003")
sketch4.AttachmentSupport = (doc.getObject("XZ_Plane"), [""])
sketch4.MapMode = "FlatFace"
sketch4.AttachmentOffset = App.Placement(Vector(0, 0, 1.905), App.Rotation())
add_polygon(sketch4, [(79.8, -86.5), (79.8, 6), (-6, 6), (-6, -86.5)])
add_polygon(sketch4, [(-1, 1), (74.8, 1), (74.8, -81.5), (-1, -81.5)])
sketch4.addConstraint(Sketcher.Constraint("Vertical", 0))
sketch4.addConstraint(Sketcher.Constraint("Horizontal", 1))
sketch4.addConstraint(Sketcher.Constraint("Vertical", 2))
sketch4.addConstraint(Sketcher.Constraint("Horizontal", 3))
sketch4.addConstraint(Sketcher.Constraint("Horizontal", 4))
sketch4.addConstraint(Sketcher.Constraint("Vertical", 5))
sketch4.addConstraint(Sketcher.Constraint("Horizontal", 6))
sketch4.addConstraint(Sketcher.Constraint("Vertical", 7))
sketch4.addConstraint(Sketcher.Constraint("DistanceX", 1, 2, 1, 1, Q("85.8 mm")))
sketch4.addConstraint(Sketcher.Constraint("DistanceX", 4, 1, 4, 2, Q("75.8 mm")))
sketch4.addConstraint(Sketcher.Constraint("DistanceY", 0, 1, 0, 2, Q("92.5 mm")))
sketch4.addConstraint(Sketcher.Constraint("DistanceY", 5, 2, 5, 1, Q("82.5 mm")))
sketch4.addConstraint(Sketcher.Constraint("DistanceY", -1, 1, 0, 2, Q("6 mm")))
sketch4.addConstraint(Sketcher.Constraint("DistanceX", 1, 2, -1, 1, Q("6 mm")))
sketch4.addConstraint(Sketcher.Constraint("DistanceY", -1, 1, 4, 2, Q("1 mm")))
sketch4.addConstraint(Sketcher.Constraint("DistanceX", 6, 2, -1, 1, Q("1 mm")))
sketch4.setExpression("Constraints[16]", "Params.sketch4_width")
sketch4.setExpression("Constraints[17]", "Params.sketch4_width2")
sketch4.setExpression("Constraints[18]", "Params.sketch4_height")
sketch4.setExpression("Constraints[19]", "Params.sketch4_height2")
pad4 = body.newObject("PartDesign::Pad", "Pad003")
pad4.Profile = sketch4
pad4.setExpression("Length", "Params.pad4_length")

sketch5 = body.newObject("Sketcher::SketchObject", "Sketch004")
sketch5.AttachmentSupport = (doc.getObject("XY_Plane"), [""])
sketch5.MapMode = "FlatFace"
add_polygon(sketch5, [(2.15, -3.095), (2.15, -9.845), (16.15, -9.845), (16.15, -3.095)])
add_polygon(sketch5, [(20.65, -3.095), (20.65, -9.845), (34.65, -9.845), (34.65, -3.095)])
add_polygon(sketch5, [(39.15, -3.095), (39.15, -9.845), (53.15, -9.845), (53.15, -3.095)])
add_polygon(sketch5, [(57.65, -3.095), (57.65, -9.845), (71.65, -9.845), (71.65, -3.095)])
sketch5.addConstraint(Sketcher.Constraint("Vertical", 0))
sketch5.addConstraint(Sketcher.Constraint("Horizontal", 1))
sketch5.addConstraint(Sketcher.Constraint("Vertical", 2))
sketch5.addConstraint(Sketcher.Constraint("Horizontal", 3))
sketch5.addConstraint(Sketcher.Constraint("Vertical", 4))
sketch5.addConstraint(Sketcher.Constraint("Horizontal", 5))
sketch5.addConstraint(Sketcher.Constraint("Vertical", 6))
sketch5.addConstraint(Sketcher.Constraint("Horizontal", 7))
sketch5.addConstraint(Sketcher.Constraint("Vertical", 8))
sketch5.addConstraint(Sketcher.Constraint("Horizontal", 9))
sketch5.addConstraint(Sketcher.Constraint("Vertical", 10))
sketch5.addConstraint(Sketcher.Constraint("Horizontal", 11))
sketch5.addConstraint(Sketcher.Constraint("Vertical", 12))
sketch5.addConstraint(Sketcher.Constraint("Horizontal", 13))
sketch5.addConstraint(Sketcher.Constraint("Vertical", 14))
sketch5.addConstraint(Sketcher.Constraint("Horizontal", 15))
sketch5.addConstraint(Sketcher.Constraint("Horizontal", 1, 2, 4, 2))
sketch5.addConstraint(Sketcher.Constraint("Horizontal", 3, 2, 6, 2))
sketch5.addConstraint(Sketcher.Constraint("Horizontal", 5, 2, 8, 2))
sketch5.addConstraint(Sketcher.Constraint("Horizontal", 7, 2, 10, 2))
sketch5.addConstraint(Sketcher.Constraint("Horizontal", 9, 2, 12, 2))
sketch5.addConstraint(Sketcher.Constraint("Horizontal", 11, 2, 14, 2))
sketch5.addConstraint(Sketcher.Constraint("Equal", 3, 5))
sketch5.addConstraint(Sketcher.Constraint("Equal", 7, 9))
sketch5.addConstraint(Sketcher.Constraint("Equal", 11, 13))
sketch5.addConstraint(Sketcher.Constraint("DistanceX", 1, 1, 1, 2, Q("14 mm")))
sketch5.addConstraint(Sketcher.Constraint("DistanceX", 1, 2, 8, 2, Q("23 mm")))
sketch5.addConstraint(Sketcher.Constraint("DistanceX", 5, 2, 12, 2, Q("23 mm")))
sketch5.addConstraint(Sketcher.Constraint("DistanceY", 0, 2, 0, 1, Q("6.75 mm")))
sketch5.addConstraint(Sketcher.Constraint("DistanceX", 1, 2, 4, 2, Q("4.5 mm")))
sketch5.addConstraint(Sketcher.Constraint("DistanceX", -1, 1, 0, 2, Q("2.15 mm")))
sketch5.addConstraint(Sketcher.Constraint("DistanceY", 0, 2, -1, 1, Q("9.845 mm")))
sketch5.setExpression("Constraints[41]", "Params.sketch5_width")
sketch5.setExpression("Constraints[44]", "Params.sketch5_height")
pocket1 = body.newObject("PartDesign::Pocket", "Pocket")
pocket1.Profile = sketch5
pocket1.Type = "ThroughAll"
pocket1.Reversed = True

sketch6 = body.newObject("Sketcher::SketchObject", "Sketch005")
sketch6.AttachmentSupport = (doc.getObject("XY_Plane"), [""])
sketch6.MapMode = "FlatFace"
add_polygon(sketch6, [(53, -4.455), (53, -10.455), (63, -10.455), (63, -4.455)])
sketch6.addConstraint(Sketcher.Constraint("Vertical", 0))
sketch6.addConstraint(Sketcher.Constraint("Horizontal", 1))
sketch6.addConstraint(Sketcher.Constraint("Vertical", 2))
sketch6.addConstraint(Sketcher.Constraint("Horizontal", 3))
sketch6.addConstraint(Sketcher.Constraint("DistanceX", 1, 1, 1, 2, Q("10 mm")))
sketch6.addConstraint(Sketcher.Constraint("DistanceY", 0, 2, 0, 1, Q("6 mm")))
sketch6.addConstraint(Sketcher.Constraint("DistanceX", -1, 1, 0, 2, Q("53 mm")))
sketch6.addConstraint(Sketcher.Constraint("DistanceY", 0, 2, -1, 1, Q("10.455 mm")))
sketch6.setExpression("Constraints[8]", "Params.sketch6_width")
sketch6.setExpression("Constraints[9]", "Params.sketch6_height")
pocket2 = body.newObject("PartDesign::Pocket", "Pocket001")
pocket2.Profile = sketch6
pocket2.Type = "ThroughAll"

sketch7 = body.newObject("Sketcher::SketchObject", "Sketch006")
sketch7.AttachmentSupport = (doc.getObject("YZ_Plane"), [""])
sketch7.MapMode = "FlatFace"
sketch7.AttachmentOffset = App.Placement(Vector(0, 0, -6), App.Rotation())
sketch7.addGeometry(Part.LineSegment(Vector(0, -59.6, 0), Vector(-8.95, -59.6, 0)), False)
sketch7.addGeometry(Part.LineSegment(Vector(-8.95, -59.6, 0), Vector(-8.95, -59.131129, 0)), False)
sketch7.addGeometry(Part.ArcOfCircle(Part.Circle(Vector(-10.95, -55.1, 0), Vector(0, 0, 1), 4.5), math.radians(-63.6122), math.radians(63.6122)), False)
sketch7.addGeometry(Part.LineSegment(Vector(-8.95, -51.068871, 0), Vector(-8.95, -50.6, 0)), False)
sketch7.addGeometry(Part.LineSegment(Vector(-8.95, -50.6, 0), Vector(0, -50.6, 0)), False)
sketch7.addGeometry(Part.LineSegment(Vector(0, -50.6, 0), Vector(0, -59.6, 0)), False)
sketch7.addConstraint(Sketcher.Constraint("Coincident", 0, 2, 1, 1))
sketch7.addConstraint(Sketcher.Constraint("Coincident", 1, 2, 2, 1))
sketch7.addConstraint(Sketcher.Constraint("Coincident", 2, 2, 3, 1))
sketch7.addConstraint(Sketcher.Constraint("Coincident", 3, 2, 4, 1))
sketch7.addConstraint(Sketcher.Constraint("Coincident", 4, 2, 5, 1))
sketch7.addConstraint(Sketcher.Constraint("Coincident", 5, 2, 0, 1))
sketch7.addConstraint(Sketcher.Constraint("Horizontal", 0))
sketch7.addConstraint(Sketcher.Constraint("Vertical", 1))
sketch7.addConstraint(Sketcher.Constraint("Vertical", 3))
sketch7.addConstraint(Sketcher.Constraint("Horizontal", 4))
sketch7.addConstraint(Sketcher.Constraint("Vertical", 5))
sketch7.addConstraint(Sketcher.Constraint("PointOnObject", 4, 2, -2))
sketch7.addConstraint(Sketcher.Constraint("Vertical", 1, 2, 2, 2))
sketch7.addConstraint(Sketcher.Constraint("Equal", 1, 3))
sketch7.addConstraint(Sketcher.Constraint("Radius", 2, Q("4.5 mm")))
sketch7.addConstraint(Sketcher.Constraint("DistanceY", 5, 2, 5, 1, Q("9 mm")))
sketch7.addConstraint(Sketcher.Constraint("DistanceX", 2, 3, 0, 2, Q("2 mm")))
sketch7.addConstraint(Sketcher.Constraint("DistanceX", 0, 2, 0, 1, Q("8.95 mm")))
sketch7.addConstraint(Sketcher.Constraint("DistanceY", 2, 3, -1, 1, Q("55.1 mm")))
sketch7.setExpression("Constraints[14]", "Params.sketch7_radius")
sketch7.setExpression("Constraints[15]", "Params.sketch7_height")
sketch7.setExpression("Constraints[17]", "Params.sketch7_width")
pad5 = body.newObject("PartDesign::Pad", "Pad004")
pad5.Profile = sketch7
pad5.setExpression("Length", "Params.pad5_length")
doc.recompute()

fillet = body.newObject("PartDesign::Fillet", "Fillet")
fillet.Base = (pad5, edges_at(pad5, [(79.8, -1.64, 6)]))
fillet.setExpression("Radius", "Params.fillet_radius")
doc.recompute()

fillet2 = body.newObject("PartDesign::Fillet", "Fillet001")
fillet2.Base = (fillet, edges_at(fillet, [(79.8, -1.64, -86.5)]))
fillet2.setExpression("Radius", "Params.fillet2_radius")
doc.recompute()

fillet3 = body.newObject("PartDesign::Fillet", "Fillet002")
fillet3.Base = (fillet2, edges_at(fillet2, [(-6, -1.64, -86.5)]))
fillet3.setExpression("Radius", "Params.fillet3_radius")
doc.recompute()

fillet4 = body.newObject("PartDesign::Fillet", "Fillet003")
fillet4.Base = (fillet3, edges_at(fillet3, [(-6, -1.64, 6)]))
fillet4.setExpression("Radius", "Params.fillet4_radius")
doc.recompute()

fillet5 = body.newObject("PartDesign::Fillet", "Fillet004")
fillet5.Base = (fillet4, edges_at(fillet4, [
    (79.8, 3.175, -40.25),
    (79.068, 3.175, 5.268),
    (36.9, 3.175, -86.5),
    (79.068, 3.175, -85.768),
    (-6, 3.175, -40.25),
    (-5.268, 3.175, -85.768),
    (36.9, 3.175, 6),
    (-5.268, 3.175, 5.268),
]))
fillet5.setExpression("Radius", "Params.fillet5_radius")

sketch8 = body.newObject("Sketcher::SketchObject", "Sketch007")
sketch8.AttachmentSupport = (doc.getObject("XZ_Plane"), [""])
sketch8.MapMode = "FlatFace"
sketch8.AttachmentOffset = App.Placement(Vector(0, 0, 6.455), App.Rotation())
add_polygon(sketch8, [(0.9, 3.5), (2.15, 2.8), (2.15, 4.2)])
add_polygon(sketch8, [(16.15, 2.8), (17.4, 3.5), (16.15, 4.2)])
add_polygon(sketch8, [(19.4, 3.5), (20.65, 2.8), (20.65, 4.2)])
add_polygon(sketch8, [(34.65, 2.8), (35.9, 3.5), (34.65, 4.2)])
add_polygon(sketch8, [(39.15, 2.8), (39.15, 4.2), (37.9, 3.5)])
add_polygon(sketch8, [(53.15, 4.2), (53.15, 2.8), (54.4, 3.5)])
add_polygon(sketch8, [(57.65, 4.2), (56.4, 3.5), (57.65, 2.8)])
add_polygon(sketch8, [(71.65, 2.8), (72.9, 3.5), (71.65, 4.2)])
sketch8.addConstraint(Sketcher.Constraint("Vertical", 1))
sketch8.addConstraint(Sketcher.Constraint("Vertical", 5))
sketch8.addConstraint(Sketcher.Constraint("Vertical", 7))
sketch8.addConstraint(Sketcher.Constraint("Vertical", 11))
sketch8.addConstraint(Sketcher.Constraint("Vertical", 12))
sketch8.addConstraint(Sketcher.Constraint("Vertical", 15))
sketch8.addConstraint(Sketcher.Constraint("Vertical", 20))
sketch8.addConstraint(Sketcher.Constraint("Vertical", 23))
sketch8.addConstraint(Sketcher.Constraint("Parallel", 2, 3))
sketch8.addConstraint(Sketcher.Constraint("Parallel", 0, 4))
sketch8.addConstraint(Sketcher.Constraint("Parallel", 4, 6))
sketch8.addConstraint(Sketcher.Constraint("Parallel", 3, 8))
sketch8.addConstraint(Sketcher.Constraint("Parallel", 8, 9))
sketch8.addConstraint(Sketcher.Constraint("Parallel", 6, 10))
sketch8.addConstraint(Sketcher.Constraint("Parallel", 9, 13))
sketch8.addConstraint(Sketcher.Constraint("Parallel", 10, 14))
sketch8.addConstraint(Sketcher.Constraint("Parallel", 13, 16))
sketch8.addConstraint(Sketcher.Constraint("Parallel", 14, 17))
sketch8.addConstraint(Sketcher.Constraint("Parallel", 16, 18))
sketch8.addConstraint(Sketcher.Constraint("Parallel", 17, 19))
sketch8.addConstraint(Sketcher.Constraint("Parallel", 18, 21))
sketch8.addConstraint(Sketcher.Constraint("Parallel", 19, 22))
sketch8.addConstraint(Sketcher.Constraint("Horizontal", 2, 2, 3, 2))
sketch8.addConstraint(Sketcher.Constraint("Horizontal", 1, 2, 4, 2))
sketch8.addConstraint(Sketcher.Constraint("Horizontal", 0, 2, 5, 2))
sketch8.addConstraint(Sketcher.Constraint("Horizontal", 5, 2, 6, 2))
sketch8.addConstraint(Sketcher.Constraint("Horizontal", 4, 2, 7, 2))
sketch8.addConstraint(Sketcher.Constraint("Horizontal", 8, 2, 9, 2))
sketch8.addConstraint(Sketcher.Constraint("Horizontal", 7, 2, 10, 2))
sketch8.addConstraint(Sketcher.Constraint("Horizontal", 10, 2, 12, 2))
sketch8.addConstraint(Sketcher.Constraint("Horizontal", 9, 2, 13, 2))
sketch8.addConstraint(Sketcher.Constraint("Horizontal", 14, 2, 15, 2))
sketch8.addConstraint(Sketcher.Constraint("Horizontal", 13, 2, 16, 2))
sketch8.addConstraint(Sketcher.Constraint("Horizontal", 16, 2, 18, 2))
sketch8.addConstraint(Sketcher.Constraint("Horizontal", 15, 2, 19, 2))
sketch8.addConstraint(Sketcher.Constraint("Horizontal", 18, 2, 21, 2))
sketch8.addConstraint(Sketcher.Constraint("Horizontal", 20, 2, 22, 2))
sketch8.addConstraint(Sketcher.Constraint("DistanceY", 1, 1, 1, 2, Q("1.4 mm")))
sketch8.addConstraint(Sketcher.Constraint("DistanceX", 1, 2, 4, 2, Q("14 mm")))
sketch8.addConstraint(Sketcher.Constraint("DistanceX", 3, 2, 8, 2, Q("2 mm")))
sketch8.addConstraint(Sketcher.Constraint("DistanceX", 7, 2, 10, 2, Q("14 mm")))
sketch8.addConstraint(Sketcher.Constraint("DistanceX", 9, 2, 13, 2, Q("2 mm")))
sketch8.addConstraint(Sketcher.Constraint("DistanceX", 14, 2, 15, 2, Q("14 mm")))
sketch8.addConstraint(Sketcher.Constraint("DistanceX", 16, 2, 18, 2, Q("2 mm")))
sketch8.addConstraint(Sketcher.Constraint("DistanceX", 20, 2, 22, 2, Q("14 mm")))
sketch8.addConstraint(Sketcher.Constraint("DistanceY", -1, 1, 0, 2, Q("2.8 mm")))
sketch8.addConstraint(Sketcher.Constraint("DistanceX", -1, 1, 2, 2, Q("0.9 mm")))
sketch8.addConstraint(Sketcher.Constraint("DistanceX", -1, 1, 3, 2, Q("17.4 mm")))
sketch8.setExpression("Constraints[61]", "Params.sketch8_height")
pocket3 = body.newObject("PartDesign::Pocket", "Pocket002")
pocket3.Profile = sketch8
pocket3.setExpression("Length", "Params.pocket3_length")

sketch9 = body.newObject("Sketcher::SketchObject", "Sketch008")
sketch9.AttachmentSupport = (doc.getObject("YZ_Plane"), [""])
sketch9.MapMode = "FlatFace"
add_polygon(sketch9, [(-3.15, 4.2), (-3.15, 2.8), (-1.85, 3.5)])
sketch9.addConstraint(Sketcher.Constraint("Vertical", 0))
sketch9.addConstraint(Sketcher.Constraint("Equal", 1, 2))
sketch9.addConstraint(Sketcher.Constraint("DistanceY", 0, 2, 0, 1, Q("1.4 mm")))
sketch9.addConstraint(Sketcher.Constraint("DistanceY", -1, 1, 0, 2, Q("2.8 mm")))
sketch9.addConstraint(Sketcher.Constraint("DistanceX", 0, 2, 1, 2, Q("1.3 mm")))
sketch9.addConstraint(Sketcher.Constraint("DistanceX", 0, 2, -1, 1, Q("3.15 mm")))
sketch9.setExpression("Constraints[5]", "Params.sketch9_height")
pocket4 = body.newObject("PartDesign::Pocket", "Pocket003")
pocket4.Profile = sketch9
pocket4.setExpression("Length", "Params.pocket4_length")
pocket4.Reversed = True

sketch10 = body.newObject("Sketcher::SketchObject", "Sketch009")
sketch10.AttachmentSupport = (doc.getObject("XY_Plane"), [""])
sketch10.MapMode = "FlatFace"
sketch10.AttachmentOffset = App.Placement(Vector(0, 0, 6), App.Rotation())
add_polygon(sketch10, [(-2.351, -0.095), (-2.351, -3.095), (2.15, -3.095), (2.15, -0.095)])
add_polygon(sketch10, [(16.149, -0.095), (16.149, -3.095), (20.65, -3.095), (20.65, -0.095)])
add_polygon(sketch10, [(34.649, -0.095), (34.649, -3.095), (39.15, -3.095), (39.15, -0.095)])
add_polygon(sketch10, [(53.149, -0.095), (53.149, -3.095), (57.65, -3.095), (57.65, -0.095)])
add_polygon(sketch10, [(71.65, -0.095), (71.65, -3.095), (76.151, -3.095), (76.151, -0.095)])
sketch10.addConstraint(Sketcher.Constraint("Vertical", 0))
sketch10.addConstraint(Sketcher.Constraint("Horizontal", 1))
sketch10.addConstraint(Sketcher.Constraint("Vertical", 2))
sketch10.addConstraint(Sketcher.Constraint("Horizontal", 3))
sketch10.addConstraint(Sketcher.Constraint("Vertical", 4))
sketch10.addConstraint(Sketcher.Constraint("Horizontal", 5))
sketch10.addConstraint(Sketcher.Constraint("Vertical", 6))
sketch10.addConstraint(Sketcher.Constraint("Horizontal", 7))
sketch10.addConstraint(Sketcher.Constraint("Vertical", 8))
sketch10.addConstraint(Sketcher.Constraint("Horizontal", 9))
sketch10.addConstraint(Sketcher.Constraint("Vertical", 10))
sketch10.addConstraint(Sketcher.Constraint("Horizontal", 11))
sketch10.addConstraint(Sketcher.Constraint("Vertical", 12))
sketch10.addConstraint(Sketcher.Constraint("Horizontal", 13))
sketch10.addConstraint(Sketcher.Constraint("Vertical", 14))
sketch10.addConstraint(Sketcher.Constraint("Horizontal", 15))
sketch10.addConstraint(Sketcher.Constraint("Vertical", 16))
sketch10.addConstraint(Sketcher.Constraint("Horizontal", 17))
sketch10.addConstraint(Sketcher.Constraint("Vertical", 18))
sketch10.addConstraint(Sketcher.Constraint("Horizontal", 19))
sketch10.addConstraint(Sketcher.Constraint("Horizontal", 1, 2, 4, 2))
sketch10.addConstraint(Sketcher.Constraint("Horizontal", 3, 2, 6, 2))
sketch10.addConstraint(Sketcher.Constraint("Horizontal", 5, 2, 8, 2))
sketch10.addConstraint(Sketcher.Constraint("Horizontal", 7, 2, 10, 2))
sketch10.addConstraint(Sketcher.Constraint("Horizontal", 9, 2, 12, 2))
sketch10.addConstraint(Sketcher.Constraint("Horizontal", 11, 2, 14, 2))
sketch10.addConstraint(Sketcher.Constraint("Horizontal", 13, 2, 16, 2))
sketch10.addConstraint(Sketcher.Constraint("Horizontal", 15, 2, 18, 2))
sketch10.addConstraint(Sketcher.Constraint("Equal", 3, 5))
sketch10.addConstraint(Sketcher.Constraint("Equal", 7, 9))
sketch10.addConstraint(Sketcher.Constraint("Equal", 11, 13))
sketch10.addConstraint(Sketcher.Constraint("Equal", 15, 17))
sketch10.addConstraint(Sketcher.Constraint("DistanceY", 0, 2, 0, 1, Q("3 mm")))
sketch10.addConstraint(Sketcher.Constraint("DistanceX", 13, 2, 16, 2, Q("14 mm")))
sketch10.addConstraint(Sketcher.Constraint("DistanceX", 0, 2, 4, 2, Q("18.5 mm")))
sketch10.addConstraint(Sketcher.Constraint("DistanceX", 4, 2, 8, 2, Q("18.5 mm")))
sketch10.addConstraint(Sketcher.Constraint("DistanceX", 8, 2, 12, 2, Q("18.5 mm")))
sketch10.addConstraint(Sketcher.Constraint("DistanceX", 1, 1, 1, 2, Q("4.501 mm")))
sketch10.addConstraint(Sketcher.Constraint("DistanceX", -1, 1, 1, 2, Q("2.15 mm")))
sketch10.addConstraint(Sketcher.Constraint("DistanceY", 0, 2, -1, 1, Q("3.095 mm")))
sketch10.setExpression("Constraints[52]", "Params.sketch10_height")
pad6 = body.newObject("PartDesign::Pad", "Pad005")
pad6.Profile = sketch10
pad6.setExpression("Length", "Params.pad6_length")
pad6.Reversed = True

doc.recompute()
